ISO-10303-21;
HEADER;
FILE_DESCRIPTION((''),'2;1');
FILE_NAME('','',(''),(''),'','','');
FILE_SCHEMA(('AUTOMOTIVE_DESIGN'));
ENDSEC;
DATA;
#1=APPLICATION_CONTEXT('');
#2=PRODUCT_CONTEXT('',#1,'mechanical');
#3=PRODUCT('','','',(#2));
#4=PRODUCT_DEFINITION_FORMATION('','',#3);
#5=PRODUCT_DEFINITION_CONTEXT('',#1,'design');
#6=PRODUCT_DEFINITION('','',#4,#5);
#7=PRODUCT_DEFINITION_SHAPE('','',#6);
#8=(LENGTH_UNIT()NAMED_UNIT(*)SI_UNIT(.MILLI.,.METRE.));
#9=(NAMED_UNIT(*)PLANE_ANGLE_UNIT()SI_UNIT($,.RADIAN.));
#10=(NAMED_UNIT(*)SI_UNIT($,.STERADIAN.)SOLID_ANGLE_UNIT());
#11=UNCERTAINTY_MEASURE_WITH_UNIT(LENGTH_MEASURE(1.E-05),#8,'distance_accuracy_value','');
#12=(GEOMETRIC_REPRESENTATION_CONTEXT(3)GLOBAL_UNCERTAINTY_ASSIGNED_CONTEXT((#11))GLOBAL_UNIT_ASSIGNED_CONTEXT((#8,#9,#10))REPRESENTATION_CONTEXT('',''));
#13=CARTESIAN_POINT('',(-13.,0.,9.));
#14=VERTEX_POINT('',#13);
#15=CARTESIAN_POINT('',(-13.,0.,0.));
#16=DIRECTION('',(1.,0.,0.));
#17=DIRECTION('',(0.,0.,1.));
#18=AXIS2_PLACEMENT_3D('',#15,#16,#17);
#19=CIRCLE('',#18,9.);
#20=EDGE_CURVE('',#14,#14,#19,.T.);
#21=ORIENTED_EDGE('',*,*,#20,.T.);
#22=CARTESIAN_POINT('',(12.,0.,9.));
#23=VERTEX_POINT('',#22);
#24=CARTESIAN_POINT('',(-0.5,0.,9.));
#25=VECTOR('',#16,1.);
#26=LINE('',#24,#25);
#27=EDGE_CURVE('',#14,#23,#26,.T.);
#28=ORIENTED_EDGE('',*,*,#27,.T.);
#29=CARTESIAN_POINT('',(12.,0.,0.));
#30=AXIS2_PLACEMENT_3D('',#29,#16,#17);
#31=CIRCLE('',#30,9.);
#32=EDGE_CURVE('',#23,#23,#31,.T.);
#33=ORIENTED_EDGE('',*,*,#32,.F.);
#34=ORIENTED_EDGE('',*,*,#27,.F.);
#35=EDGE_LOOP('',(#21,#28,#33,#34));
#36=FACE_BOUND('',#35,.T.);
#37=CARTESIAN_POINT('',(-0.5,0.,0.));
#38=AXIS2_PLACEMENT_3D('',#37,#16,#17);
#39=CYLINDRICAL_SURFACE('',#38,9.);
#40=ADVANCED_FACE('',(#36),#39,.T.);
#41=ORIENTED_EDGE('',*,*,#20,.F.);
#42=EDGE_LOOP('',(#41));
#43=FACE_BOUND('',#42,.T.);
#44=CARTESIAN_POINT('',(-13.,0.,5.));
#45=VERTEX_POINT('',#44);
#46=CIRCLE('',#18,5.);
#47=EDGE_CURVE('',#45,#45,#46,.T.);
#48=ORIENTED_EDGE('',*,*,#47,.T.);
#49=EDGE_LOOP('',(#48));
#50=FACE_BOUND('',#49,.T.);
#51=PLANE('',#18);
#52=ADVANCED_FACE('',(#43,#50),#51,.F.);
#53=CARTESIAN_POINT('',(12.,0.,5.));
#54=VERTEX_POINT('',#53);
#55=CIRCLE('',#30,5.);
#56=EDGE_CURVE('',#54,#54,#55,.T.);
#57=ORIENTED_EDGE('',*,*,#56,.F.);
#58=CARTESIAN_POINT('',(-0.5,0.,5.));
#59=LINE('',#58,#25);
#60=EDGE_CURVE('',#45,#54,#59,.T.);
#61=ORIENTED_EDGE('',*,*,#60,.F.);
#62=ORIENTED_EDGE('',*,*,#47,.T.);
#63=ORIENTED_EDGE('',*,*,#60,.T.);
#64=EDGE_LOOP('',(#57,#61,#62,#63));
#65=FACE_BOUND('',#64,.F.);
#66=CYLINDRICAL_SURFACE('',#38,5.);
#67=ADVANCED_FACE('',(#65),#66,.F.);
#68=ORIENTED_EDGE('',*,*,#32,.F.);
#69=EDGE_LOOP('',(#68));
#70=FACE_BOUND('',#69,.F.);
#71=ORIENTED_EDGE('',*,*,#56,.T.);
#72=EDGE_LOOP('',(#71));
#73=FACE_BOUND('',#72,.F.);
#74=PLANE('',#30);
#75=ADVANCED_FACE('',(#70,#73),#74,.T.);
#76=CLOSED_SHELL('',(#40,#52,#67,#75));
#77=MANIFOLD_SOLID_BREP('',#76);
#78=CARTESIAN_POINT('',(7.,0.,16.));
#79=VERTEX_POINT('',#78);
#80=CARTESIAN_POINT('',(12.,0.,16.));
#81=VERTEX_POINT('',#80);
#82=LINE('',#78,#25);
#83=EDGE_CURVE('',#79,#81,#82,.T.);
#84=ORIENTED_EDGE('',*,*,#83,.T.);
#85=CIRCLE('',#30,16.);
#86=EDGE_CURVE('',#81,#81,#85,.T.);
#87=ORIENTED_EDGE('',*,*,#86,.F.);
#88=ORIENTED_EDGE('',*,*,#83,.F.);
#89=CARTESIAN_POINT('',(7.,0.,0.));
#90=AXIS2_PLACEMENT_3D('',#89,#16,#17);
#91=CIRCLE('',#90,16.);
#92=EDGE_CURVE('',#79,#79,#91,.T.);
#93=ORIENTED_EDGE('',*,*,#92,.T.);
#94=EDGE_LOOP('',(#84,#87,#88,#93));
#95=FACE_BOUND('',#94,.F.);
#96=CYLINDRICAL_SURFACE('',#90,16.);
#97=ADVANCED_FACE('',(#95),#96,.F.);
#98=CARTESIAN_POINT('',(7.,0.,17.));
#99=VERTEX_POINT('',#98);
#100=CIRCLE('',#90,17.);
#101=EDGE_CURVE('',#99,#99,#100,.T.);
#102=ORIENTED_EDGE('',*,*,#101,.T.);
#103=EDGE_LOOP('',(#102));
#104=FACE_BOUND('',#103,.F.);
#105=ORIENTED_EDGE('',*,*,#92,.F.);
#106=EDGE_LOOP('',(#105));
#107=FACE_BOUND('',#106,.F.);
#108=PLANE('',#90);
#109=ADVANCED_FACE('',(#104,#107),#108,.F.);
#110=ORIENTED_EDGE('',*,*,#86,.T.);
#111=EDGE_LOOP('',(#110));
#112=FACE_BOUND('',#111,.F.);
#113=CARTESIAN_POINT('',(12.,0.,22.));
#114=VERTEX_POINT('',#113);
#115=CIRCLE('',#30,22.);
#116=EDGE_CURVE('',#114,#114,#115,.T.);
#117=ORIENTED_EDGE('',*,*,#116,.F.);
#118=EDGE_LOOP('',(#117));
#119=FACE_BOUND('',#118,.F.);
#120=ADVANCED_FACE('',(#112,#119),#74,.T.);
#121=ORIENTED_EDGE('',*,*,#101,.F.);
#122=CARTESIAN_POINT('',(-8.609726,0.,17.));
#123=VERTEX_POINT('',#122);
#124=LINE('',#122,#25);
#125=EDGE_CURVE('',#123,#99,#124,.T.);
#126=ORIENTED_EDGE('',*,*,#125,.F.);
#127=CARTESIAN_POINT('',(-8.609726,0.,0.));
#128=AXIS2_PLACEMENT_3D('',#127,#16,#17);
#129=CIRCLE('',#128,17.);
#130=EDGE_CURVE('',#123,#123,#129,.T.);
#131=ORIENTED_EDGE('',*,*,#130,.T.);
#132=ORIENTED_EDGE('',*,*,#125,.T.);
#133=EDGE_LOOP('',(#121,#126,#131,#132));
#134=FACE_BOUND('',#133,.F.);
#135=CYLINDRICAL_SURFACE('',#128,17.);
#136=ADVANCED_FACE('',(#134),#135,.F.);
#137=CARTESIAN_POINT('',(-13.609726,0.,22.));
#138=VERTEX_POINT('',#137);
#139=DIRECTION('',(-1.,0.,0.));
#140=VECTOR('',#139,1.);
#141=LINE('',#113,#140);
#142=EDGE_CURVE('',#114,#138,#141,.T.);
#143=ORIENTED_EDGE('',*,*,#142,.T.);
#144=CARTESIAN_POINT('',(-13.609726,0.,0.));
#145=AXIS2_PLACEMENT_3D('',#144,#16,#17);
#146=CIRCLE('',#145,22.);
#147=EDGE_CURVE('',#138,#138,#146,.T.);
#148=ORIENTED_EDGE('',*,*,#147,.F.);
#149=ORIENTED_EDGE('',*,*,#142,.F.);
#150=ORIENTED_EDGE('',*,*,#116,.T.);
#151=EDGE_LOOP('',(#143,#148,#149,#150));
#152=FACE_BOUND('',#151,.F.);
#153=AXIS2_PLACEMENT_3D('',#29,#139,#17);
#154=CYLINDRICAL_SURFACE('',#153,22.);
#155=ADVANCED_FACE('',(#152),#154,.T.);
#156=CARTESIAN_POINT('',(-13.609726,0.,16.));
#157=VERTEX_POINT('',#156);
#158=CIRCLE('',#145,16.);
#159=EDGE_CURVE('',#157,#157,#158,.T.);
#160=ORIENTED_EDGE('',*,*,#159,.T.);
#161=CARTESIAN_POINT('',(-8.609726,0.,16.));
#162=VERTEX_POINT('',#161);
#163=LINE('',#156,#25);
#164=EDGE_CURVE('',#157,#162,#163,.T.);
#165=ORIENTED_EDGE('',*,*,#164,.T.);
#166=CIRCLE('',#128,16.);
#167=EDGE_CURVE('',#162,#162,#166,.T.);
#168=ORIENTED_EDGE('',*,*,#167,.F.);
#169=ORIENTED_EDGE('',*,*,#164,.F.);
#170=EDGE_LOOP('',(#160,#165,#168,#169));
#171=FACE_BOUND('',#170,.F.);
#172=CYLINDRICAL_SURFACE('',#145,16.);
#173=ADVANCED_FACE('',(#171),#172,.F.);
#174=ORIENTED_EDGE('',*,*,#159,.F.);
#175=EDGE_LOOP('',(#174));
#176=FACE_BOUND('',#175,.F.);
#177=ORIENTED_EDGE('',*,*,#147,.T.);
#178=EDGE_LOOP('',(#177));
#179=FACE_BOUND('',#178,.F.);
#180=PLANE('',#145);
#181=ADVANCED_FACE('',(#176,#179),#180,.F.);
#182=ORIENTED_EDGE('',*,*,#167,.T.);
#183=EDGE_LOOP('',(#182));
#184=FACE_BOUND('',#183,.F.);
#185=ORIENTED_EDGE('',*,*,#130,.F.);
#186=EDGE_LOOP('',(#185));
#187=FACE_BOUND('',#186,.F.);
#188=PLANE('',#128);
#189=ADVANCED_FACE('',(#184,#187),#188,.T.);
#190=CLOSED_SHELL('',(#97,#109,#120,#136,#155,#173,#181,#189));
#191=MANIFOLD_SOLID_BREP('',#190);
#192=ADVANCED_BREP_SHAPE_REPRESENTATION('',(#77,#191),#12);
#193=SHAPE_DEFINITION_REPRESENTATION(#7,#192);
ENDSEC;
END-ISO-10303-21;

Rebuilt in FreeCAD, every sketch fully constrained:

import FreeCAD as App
import Part
import Sketcher
from FreeCAD import Vector

doc = App.newDocument("Part")
body = doc.addObject("PartDesign::Body", "Body")
body.AllowCompound = True

# Sketch on XZ plane
sketch1 = body.newObject("Sketcher::SketchObject", "Sketch")
sketch1.AttachmentSupport = (doc.getObject("XZ_Plane"), [""])
sketch1.MapMode = "FlatFace"
sketch1.addGeometry(Part.LineSegment(Vector(-13, 9, 0), Vector(-13, 5, 0)), False)
sketch1.addGeometry(Part.LineSegment(Vector(-13, 5, 0), Vector(12, 5, 0)), False)
sketch1.addGeometry(Part.LineSegment(Vector(12, 5, 0), Vector(12, 9, 0)), False)
sketch1.addGeometry(Part.LineSegment(Vector(12, 9, 0), Vector(-13, 9, 0)), False)
sketch1.addGeometry(Part.LineSegment(Vector(-13.6, 22, 0), Vector(-13.6, 16, 0)), False)
sketch1.addGeometry(Part.LineSegment(Vector(-13.6, 16, 0), Vector(-8.6, 16, 0)), False)
sketch1.addGeometry(Part.LineSegment(Vector(-8.6, 16, 0), Vector(-8.6, 17, 0)), False)
sketch1.addGeometry(Part.LineSegment(Vector(-8.6, 17, 0), Vector(7, 17, 0)), False)
sketch1.addGeometry(Part.LineSegment(Vector(7, 17, 0), Vector(7, 16, 0)), False)
sketch1.addGeometry(Part.LineSegment(Vector(7, 16, 0), Vector(12, 16, 0)), False)
sketch1.addGeometry(Part.LineSegment(Vector(12, 16, 0), Vector(12, 22, 0)), False)
sketch1.addGeometry(Part.LineSegment(Vector(12, 22, 0), Vector(-13.6, 22, 0)), False)
sketch1.addConstraint(Sketcher.Constraint("Coincident", 0, 2, 1, 1))
sketch1.addConstraint(Sketcher.Constraint("Coincident", 1, 2, 2, 1))
sketch1.addConstraint(Sketcher.Constraint("Coincident", 2, 2, 3, 1))
sketch1.addConstraint(Sketcher.Constraint("Coincident", 3, 2, 0, 1))
sketch1.addConstraint(Sketcher.Constraint("Coincident", 4, 2, 5, 1))
sketch1.addConstraint(Sketcher.Constraint("Coincident", 5, 2, 6, 1))
sketch1.addConstraint(Sketcher.Constraint("Coincident", 6, 2, 7, 1))
sketch1.addConstraint(Sketcher.Constraint("Coincident", 7, 2, 8, 1))
sketch1.addConstraint(Sketcher.Constraint("Coincident", 8, 2, 9, 1))
sketch1.addConstraint(Sketcher.Constraint("Coincident", 9, 2, 10, 1))
sketch1.addConstraint(Sketcher.Constraint("Coincident", 10, 2, 11, 1))
sketch1.addConstraint(Sketcher.Constraint("Coincident", 11, 2, 4, 1))
sketch1.addConstraint(Sketcher.Constraint("Vertical", 0))
sketch1.addConstraint(Sketcher.Constraint("Horizontal", 1))
sketch1.addConstraint(Sketcher.Constraint("Vertical", 2))
sketch1.addConstraint(Sketcher.Constraint("Horizontal", 3))
sketch1.addConstraint(Sketcher.Constraint("Vertical", 4))
sketch1.addConstraint(Sketcher.Constraint("Horizontal", 5))
sketch1.addConstraint(Sketcher.Constraint("Vertical", 6))
sketch1.addConstraint(Sketcher.Constraint("Horizontal", 7))
sketch1.addConstraint(Sketcher.Constraint("Vertical", 8))
sketch1.addConstraint(Sketcher.Constraint("Horizontal", 9))
sketch1.addConstraint(Sketcher.Constraint("Vertical", 10))
sketch1.addConstraint(Sketcher.Constraint("Horizontal", 11))
sketch1.addConstraint(Sketcher.Constraint("Horizontal", 5, 2, 8, 2))
sketch1.addConstraint(Sketcher.Constraint("Vertical", 2, 2, 9, 2))
sketch1.addConstraint(Sketcher.Constraint("Equal", 5, 9))
sketch1.addConstraint(Sketcher.Constraint("DistanceX", 1, 1, 1, 2, 25.0))
sketch1.addConstraint(Sketcher.Constraint("DistanceX", 5, 1, 5, 2, 5.0))
sketch1.addConstraint(Sketcher.Constraint("DistanceY", 0, 2, 0, 1, 4.0))
sketch1.addConstraint(Sketcher.Constraint("DistanceY", 4, 2, 4, 1, 6.0))
sketch1.addConstraint(Sketcher.Constraint("DistanceY", 6, 1, 6, 2, 1.0))
sketch1.addConstraint(Sketcher.Constraint("DistanceX", 0, 2, -1, 1, 13.0))
sketch1.addConstraint(Sketcher.Constraint("DistanceY", -1, 1, 0, 2, 5.0))
sketch1.addConstraint(Sketcher.Constraint("DistanceY", -1, 1, 4, 2, 16.0))
sketch1.addConstraint(Sketcher.Constraint("DistanceX", 7, 1, 7, 2, 15.609726))
revolution = body.newObject("PartDesign::Revolution", "Revolution")
revolution.Profile = sketch1
revolution.ReferenceAxis = (sketch1, ["H_Axis"])
revolution.Angle = 360

doc.recompute()
